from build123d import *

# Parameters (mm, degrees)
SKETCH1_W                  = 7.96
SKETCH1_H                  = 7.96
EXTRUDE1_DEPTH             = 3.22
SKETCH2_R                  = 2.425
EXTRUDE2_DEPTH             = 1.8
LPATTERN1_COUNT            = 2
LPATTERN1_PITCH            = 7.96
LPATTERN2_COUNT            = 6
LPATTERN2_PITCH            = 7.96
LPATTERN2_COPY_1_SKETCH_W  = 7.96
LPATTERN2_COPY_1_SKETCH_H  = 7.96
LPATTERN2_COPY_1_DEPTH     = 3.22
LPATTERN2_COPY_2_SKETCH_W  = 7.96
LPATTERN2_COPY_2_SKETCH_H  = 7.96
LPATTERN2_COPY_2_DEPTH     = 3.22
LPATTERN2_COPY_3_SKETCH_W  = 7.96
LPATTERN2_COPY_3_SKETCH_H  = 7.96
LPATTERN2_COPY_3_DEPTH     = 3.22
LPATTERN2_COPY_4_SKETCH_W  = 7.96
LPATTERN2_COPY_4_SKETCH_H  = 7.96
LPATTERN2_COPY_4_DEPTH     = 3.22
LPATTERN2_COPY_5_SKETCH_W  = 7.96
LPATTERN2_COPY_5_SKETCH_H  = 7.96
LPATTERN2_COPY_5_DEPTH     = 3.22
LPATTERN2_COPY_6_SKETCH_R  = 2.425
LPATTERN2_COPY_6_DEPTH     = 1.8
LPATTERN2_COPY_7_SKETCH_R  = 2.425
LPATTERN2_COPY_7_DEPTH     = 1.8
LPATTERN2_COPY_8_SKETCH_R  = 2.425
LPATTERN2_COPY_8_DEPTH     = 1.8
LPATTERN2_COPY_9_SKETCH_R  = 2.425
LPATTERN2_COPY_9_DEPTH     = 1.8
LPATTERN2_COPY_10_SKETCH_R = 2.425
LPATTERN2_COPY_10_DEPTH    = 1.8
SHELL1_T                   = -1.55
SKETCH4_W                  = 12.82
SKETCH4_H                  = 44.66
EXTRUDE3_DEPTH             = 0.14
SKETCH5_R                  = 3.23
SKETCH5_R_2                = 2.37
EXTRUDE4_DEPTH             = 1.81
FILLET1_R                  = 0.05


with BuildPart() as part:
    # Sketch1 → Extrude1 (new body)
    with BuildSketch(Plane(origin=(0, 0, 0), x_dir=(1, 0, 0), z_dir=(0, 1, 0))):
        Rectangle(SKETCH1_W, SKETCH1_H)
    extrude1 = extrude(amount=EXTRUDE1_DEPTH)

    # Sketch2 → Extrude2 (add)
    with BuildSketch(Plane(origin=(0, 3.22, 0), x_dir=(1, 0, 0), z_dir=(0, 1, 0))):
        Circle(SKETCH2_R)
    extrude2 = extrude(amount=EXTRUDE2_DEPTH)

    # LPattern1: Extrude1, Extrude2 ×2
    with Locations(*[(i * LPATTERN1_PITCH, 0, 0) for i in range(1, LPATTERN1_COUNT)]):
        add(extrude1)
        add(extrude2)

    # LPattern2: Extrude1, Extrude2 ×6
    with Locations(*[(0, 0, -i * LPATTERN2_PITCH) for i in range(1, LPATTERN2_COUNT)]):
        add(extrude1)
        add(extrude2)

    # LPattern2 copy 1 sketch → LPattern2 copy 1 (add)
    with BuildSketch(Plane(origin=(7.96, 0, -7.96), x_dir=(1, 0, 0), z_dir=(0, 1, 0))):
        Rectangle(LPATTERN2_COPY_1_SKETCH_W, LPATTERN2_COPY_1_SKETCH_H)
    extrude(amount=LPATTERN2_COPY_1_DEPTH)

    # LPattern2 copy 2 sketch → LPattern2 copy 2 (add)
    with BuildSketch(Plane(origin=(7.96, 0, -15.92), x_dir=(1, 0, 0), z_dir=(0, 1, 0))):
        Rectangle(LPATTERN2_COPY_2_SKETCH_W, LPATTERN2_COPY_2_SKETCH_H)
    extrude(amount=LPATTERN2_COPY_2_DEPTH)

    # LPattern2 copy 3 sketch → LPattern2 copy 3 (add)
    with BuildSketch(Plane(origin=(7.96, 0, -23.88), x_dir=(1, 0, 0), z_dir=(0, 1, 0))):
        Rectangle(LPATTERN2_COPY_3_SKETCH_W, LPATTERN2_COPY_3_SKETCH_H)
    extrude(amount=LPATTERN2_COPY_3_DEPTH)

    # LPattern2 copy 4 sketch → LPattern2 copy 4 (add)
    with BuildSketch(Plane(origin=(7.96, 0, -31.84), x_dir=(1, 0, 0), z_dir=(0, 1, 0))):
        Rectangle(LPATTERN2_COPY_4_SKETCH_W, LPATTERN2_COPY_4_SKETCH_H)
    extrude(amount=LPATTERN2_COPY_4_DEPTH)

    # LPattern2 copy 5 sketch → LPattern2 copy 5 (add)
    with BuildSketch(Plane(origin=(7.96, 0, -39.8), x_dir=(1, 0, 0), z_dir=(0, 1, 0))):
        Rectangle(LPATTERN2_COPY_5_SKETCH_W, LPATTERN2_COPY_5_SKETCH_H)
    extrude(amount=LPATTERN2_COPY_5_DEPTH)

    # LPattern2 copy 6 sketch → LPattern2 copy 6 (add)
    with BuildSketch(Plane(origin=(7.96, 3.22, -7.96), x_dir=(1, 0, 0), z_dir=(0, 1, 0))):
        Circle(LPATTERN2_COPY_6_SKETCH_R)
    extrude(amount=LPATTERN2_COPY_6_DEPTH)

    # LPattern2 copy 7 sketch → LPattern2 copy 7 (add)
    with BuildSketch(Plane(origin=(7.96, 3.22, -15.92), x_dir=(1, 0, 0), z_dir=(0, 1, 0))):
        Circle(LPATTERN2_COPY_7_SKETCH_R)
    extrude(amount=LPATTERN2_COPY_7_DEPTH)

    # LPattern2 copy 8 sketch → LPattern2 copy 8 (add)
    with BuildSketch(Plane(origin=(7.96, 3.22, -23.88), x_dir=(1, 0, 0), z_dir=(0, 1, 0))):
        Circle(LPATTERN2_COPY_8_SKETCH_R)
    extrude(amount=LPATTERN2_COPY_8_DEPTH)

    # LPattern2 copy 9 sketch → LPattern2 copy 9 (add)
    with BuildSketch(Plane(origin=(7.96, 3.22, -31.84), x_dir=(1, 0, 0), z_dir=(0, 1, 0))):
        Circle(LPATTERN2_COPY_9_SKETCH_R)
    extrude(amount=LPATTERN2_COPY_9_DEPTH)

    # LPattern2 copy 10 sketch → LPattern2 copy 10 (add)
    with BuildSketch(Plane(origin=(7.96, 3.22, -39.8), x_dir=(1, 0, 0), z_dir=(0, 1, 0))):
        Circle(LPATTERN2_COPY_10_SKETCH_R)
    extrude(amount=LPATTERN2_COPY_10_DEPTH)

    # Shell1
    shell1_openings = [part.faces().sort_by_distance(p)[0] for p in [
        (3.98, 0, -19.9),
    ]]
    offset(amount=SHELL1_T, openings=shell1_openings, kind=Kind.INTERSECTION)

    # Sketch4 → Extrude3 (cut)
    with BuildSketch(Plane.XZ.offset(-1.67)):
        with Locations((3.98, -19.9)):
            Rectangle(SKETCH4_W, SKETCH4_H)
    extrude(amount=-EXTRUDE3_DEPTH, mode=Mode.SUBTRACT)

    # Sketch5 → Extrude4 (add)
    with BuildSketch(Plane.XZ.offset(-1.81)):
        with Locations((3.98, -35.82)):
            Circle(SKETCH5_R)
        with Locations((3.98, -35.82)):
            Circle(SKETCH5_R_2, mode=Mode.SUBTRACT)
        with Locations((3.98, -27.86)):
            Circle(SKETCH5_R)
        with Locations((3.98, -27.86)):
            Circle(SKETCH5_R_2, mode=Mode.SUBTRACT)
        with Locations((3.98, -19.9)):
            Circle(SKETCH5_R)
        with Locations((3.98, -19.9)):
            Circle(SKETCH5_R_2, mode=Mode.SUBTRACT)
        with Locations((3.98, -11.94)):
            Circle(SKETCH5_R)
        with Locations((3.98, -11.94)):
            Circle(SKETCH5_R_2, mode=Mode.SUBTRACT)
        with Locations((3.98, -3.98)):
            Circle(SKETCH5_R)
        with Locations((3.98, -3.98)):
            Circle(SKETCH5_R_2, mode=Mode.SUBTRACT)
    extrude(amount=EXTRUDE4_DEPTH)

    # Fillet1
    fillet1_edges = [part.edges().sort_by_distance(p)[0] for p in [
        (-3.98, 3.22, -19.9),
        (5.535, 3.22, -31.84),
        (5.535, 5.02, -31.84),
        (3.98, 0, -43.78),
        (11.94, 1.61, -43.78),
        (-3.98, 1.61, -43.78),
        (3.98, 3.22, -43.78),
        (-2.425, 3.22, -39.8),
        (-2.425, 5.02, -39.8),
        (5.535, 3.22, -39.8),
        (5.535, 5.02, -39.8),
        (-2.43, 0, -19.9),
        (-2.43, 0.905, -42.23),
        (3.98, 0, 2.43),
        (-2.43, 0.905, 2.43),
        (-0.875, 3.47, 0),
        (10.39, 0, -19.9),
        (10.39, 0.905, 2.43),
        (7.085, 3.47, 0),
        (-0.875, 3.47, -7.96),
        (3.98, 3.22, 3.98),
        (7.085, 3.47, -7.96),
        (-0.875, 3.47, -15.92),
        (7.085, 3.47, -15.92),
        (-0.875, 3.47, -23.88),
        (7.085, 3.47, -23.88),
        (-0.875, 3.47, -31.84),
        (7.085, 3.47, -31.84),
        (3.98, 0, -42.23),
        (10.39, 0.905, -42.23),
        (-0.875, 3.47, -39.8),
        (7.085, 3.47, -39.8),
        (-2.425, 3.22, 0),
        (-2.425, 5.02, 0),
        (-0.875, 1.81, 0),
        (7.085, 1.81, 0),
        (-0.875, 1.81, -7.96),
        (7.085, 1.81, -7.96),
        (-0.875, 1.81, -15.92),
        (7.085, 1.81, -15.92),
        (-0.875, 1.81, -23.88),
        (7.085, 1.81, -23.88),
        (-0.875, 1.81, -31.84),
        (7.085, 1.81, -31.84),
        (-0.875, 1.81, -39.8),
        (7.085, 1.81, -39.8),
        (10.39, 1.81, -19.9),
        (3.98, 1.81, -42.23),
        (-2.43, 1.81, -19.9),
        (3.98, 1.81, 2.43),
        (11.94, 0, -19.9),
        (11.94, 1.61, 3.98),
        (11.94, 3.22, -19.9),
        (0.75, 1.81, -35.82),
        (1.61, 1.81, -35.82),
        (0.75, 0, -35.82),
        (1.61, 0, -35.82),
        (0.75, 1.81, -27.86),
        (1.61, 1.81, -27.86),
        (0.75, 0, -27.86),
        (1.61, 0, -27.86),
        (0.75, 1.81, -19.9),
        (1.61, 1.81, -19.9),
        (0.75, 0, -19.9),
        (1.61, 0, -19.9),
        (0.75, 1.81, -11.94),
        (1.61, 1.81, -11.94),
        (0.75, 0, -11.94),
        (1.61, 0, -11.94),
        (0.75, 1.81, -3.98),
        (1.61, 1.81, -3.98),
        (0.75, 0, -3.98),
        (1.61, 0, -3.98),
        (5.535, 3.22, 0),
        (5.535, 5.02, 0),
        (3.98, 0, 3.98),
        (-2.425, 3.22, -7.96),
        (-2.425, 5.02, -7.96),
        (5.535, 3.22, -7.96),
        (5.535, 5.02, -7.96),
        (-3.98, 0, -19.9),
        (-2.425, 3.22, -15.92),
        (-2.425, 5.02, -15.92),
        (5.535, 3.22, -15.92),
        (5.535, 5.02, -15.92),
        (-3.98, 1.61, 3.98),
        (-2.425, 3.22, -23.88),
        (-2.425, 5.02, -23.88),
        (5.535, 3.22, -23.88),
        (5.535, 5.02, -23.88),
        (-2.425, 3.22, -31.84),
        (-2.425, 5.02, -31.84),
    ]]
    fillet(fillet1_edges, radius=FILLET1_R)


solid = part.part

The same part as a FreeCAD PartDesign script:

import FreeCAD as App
import Part
import Sketcher

V = App.Vector
Q = App.Units.Quantity


def faces_at(feature, points):
    """Names of the faces that lie closest to the given points."""
    faces = feature.Shape.Faces
    near = lambda p: min(range(len(faces)), key=lambda i: faces[i].distToShape(Part.Vertex(*p))[0])
    return sorted({f"Face{near(p) + 1}" for p in points})


def add_polygon(sketch, points):
    """Adds a closed chain of lines whose ends are joined by coincident constraints."""
    first, n = sketch.GeometryCount, len(points)
    for a, b in zip(points, points[1:] + points[:1]):
        sketch.addGeometry(Part.LineSegment(App.Vector(*a, 0), App.Vector(*b, 0)), False)
    for i in range(n):
        sketch.addConstraint(Sketcher.Constraint("Coincident", first + i, 2, first + (i + 1) % n, 1))

doc = App.newDocument("Part")
body = doc.addObject("PartDesign::Body", "Body")

# Sketch on XZ plane
sketch1 = doc.addObject("Sketcher::SketchObject", "Sketch")
body.addObject(sketch1)
sketch1.AttachmentSupport = (doc.XZ_Plane, [""])
sketch1.MapMode = "FlatFace"
add_polygon(sketch1, [(-3.98, -3.98), (-3.98, 3.98), (3.98, 3.98), (3.98, -3.98)])  # lines 0-3
sketch1.addConstraint([
    Sketcher.Constraint("Vertical", 0),
    Sketcher.Constraint("Horizontal", 1),
    Sketcher.Constraint("Vertical", 2),
    Sketcher.Constraint("Horizontal", 3),
    Sketcher.Constraint("Symmetric", 0, 2, 2, 2, -1, 1),
    Sketcher.Constraint("Equal", 3, 0),
    Sketcher.Constraint("DistanceX", 1, 1, 1, 2, Q("7.96 mm")),
])
pad1 = doc.addObject("PartDesign::Pad", "Pad")
body.addObject(pad1)
pad1.Profile = sketch1
pad1.Length = 3.22
pad1.Reversed = True

# Sketch on XZ plane
sketch2 = doc.addObject("Sketcher::SketchObject", "Sketch001")
body.addObject(sketch2)
sketch2.AttachmentSupport = (doc.XZ_Plane, [""])
sketch2.MapMode = "FlatFace"
sketch2.AttachmentOffset = App.Placement(V(0, 0, -3.22), App.Rotation())
sketch2.addGeometry(Part.Circle(V(0, 0, 0), V(0, 0, 1), 2.425), False)
sketch2.addConstraint([
    Sketcher.Constraint("Coincident", 0, 3, -1, 1),
    Sketcher.Constraint("Diameter", 0, Q("4.85 mm")),
])
pad2 = doc.addObject("PartDesign::Pad", "Pad001")
body.addObject(pad2)
pad2.Profile = sketch2
pad2.Length = 1.8
pad2.Reversed = True
doc.recompute()

linearpattern = doc.addObject("PartDesign::LinearPattern", "LinearPattern")
body.addObject(linearpattern)
linearpattern.Originals = [pad1, pad2]
linearpattern.Direction = (doc.X_Axis, [""])
linearpattern.Mode = "offset"
linearpattern.Offset = 7.96
linearpattern.Occurrences = 2
body.Tip = linearpattern
doc.recompute()

linearpattern2 = doc.addObject("PartDesign::LinearPattern", "LinearPattern001")
body.addObject(linearpattern2)
linearpattern2.Originals = [pad1, pad2]
linearpattern2.Direction = (doc.Z_Axis, [""])
linearpattern2.Mode = "offset"
linearpattern2.Offset = 7.96
linearpattern2.Occurrences = 6
linearpattern2.Reversed = True
body.Tip = linearpattern2

# Sketch on XZ plane
sketch3 = doc.addObject("Sketcher::SketchObject", "Sketch002")
body.addObject(sketch3)
sketch3.AttachmentSupport = (doc.XZ_Plane, [""])
sketch3.MapMode = "FlatFace"
add_polygon(sketch3, [(3.98, -11.94), (3.98, -3.98), (11.94, -3.98), (11.94, -11.94)])  # lines 0-3
sketch3.addConstraint([
    Sketcher.Constraint("Vertical", 0),
    Sketcher.Constraint("Horizontal", 1),
    Sketcher.Constraint("Vertical", 2),
    Sketcher.Constraint("Horizontal", 3),
    Sketcher.Constraint("Equal", 3, 0),
    Sketcher.Constraint("DistanceX", 1, 1, 1, 2, Q("7.96 mm")),
    Sketcher.Constraint("DistanceX", -1, 1, 0, 2, Q("3.98 mm")),
    Sketcher.Constraint("DistanceY", 0, 2, -1, 1, Q("3.98 mm")),
])
pad3 = doc.addObject("PartDesign::Pad", "Pad002")
body.addObject(pad3)
pad3.Profile = sketch3
pad3.Length = 3.22
pad3.Reversed = True

# Sketch on XZ plane
sketch4 = doc.addObject("Sketcher::SketchObject", "Sketch003")
body.addObject(sketch4)
sketch4.AttachmentSupport = (doc.XZ_Plane, [""])
sketch4.MapMode = "FlatFace"
add_polygon(sketch4, [(3.98, -19.9), (3.98, -11.94), (11.94, -11.94), (11.94, -19.9)])  # lines 0-3
sketch4.addConstraint([
    Sketcher.Constraint("Vertical", 0),
    Sketcher.Constraint("Horizontal", 1),
    Sketcher.Constraint("Vertical", 2),
    Sketcher.Constraint("Horizontal", 3),
    Sketcher.Constraint("Equal", 3, 0),
    Sketcher.Constraint("DistanceX", 1, 1, 1, 2, Q("7.96 mm")),
    Sketcher.Constraint("DistanceY", 2, 2, -1, 1, Q("19.9 mm")),
    Sketcher.Constraint("DistanceX", -1, 1, 0, 2, Q("3.98 mm")),
])
pad4 = doc.addObject("PartDesign::Pad", "Pad003")
body.addObject(pad4)
pad4.Profile = sketch4
pad4.Length = 3.22
pad4.Reversed = True

# Sketch on XZ plane
sketch5 = doc.addObject("Sketcher::SketchObject", "Sketch004")
body.addObject(sketch5)
sketch5.AttachmentSupport = (doc.XZ_Plane, [""])
sketch5.MapMode = "FlatFace"
add_polygon(sketch5, [(3.98, -27.86), (3.98, -19.9), (11.94, -19.9), (11.94, -27.86)])  # lines 0-3
sketch5.addConstraint([
    Sketcher.Constraint("Vertical", 0),
    Sketcher.Constraint("Horizontal", 1),
    Sketcher.Constraint("Vertical", 2),
    Sketcher.Constraint("Horizontal", 3),
    Sketcher.Constraint("Equal", 3, 0),
    Sketcher.Constraint("DistanceX", 1, 1, 1, 2, Q("7.96 mm")),
    Sketcher.Constraint("DistanceY", 0, 2, -1, 1, Q("19.9 mm")),
    Sketcher.Constraint("DistanceX", -1, 1, 0, 2, Q("3.98 mm")),
])
pad5 = doc.addObject("PartDesign::Pad", "Pad004")
body.addObject(pad5)
pad5.Profile = sketch5
pad5.Length = 3.22
pad5.Reversed = True

# Sketch on XZ plane
sketch6 = doc.addObject("Sketcher::SketchObject", "Sketch005")
body.addObject(sketch6)
sketch6.AttachmentSupport = (doc.XZ_Plane, [""])
sketch6.MapMode = "FlatFace"
add_polygon(sketch6, [(3.98, -35.82), (3.98, -27.86), (11.94, -27.86), (11.94, -35.82)])  # lines 0-3
sketch6.addConstraint([
    Sketcher.Constraint("Vertical", 0),
    Sketcher.Constraint("Horizontal", 1),
    Sketcher.Constraint("Vertical", 2),
    Sketcher.Constraint("Horizontal", 3),
    Sketcher.Constraint("Equal", 3, 0),
    Sketcher.Constraint("DistanceX", 1, 1, 1, 2, Q("7.96 mm")),
    Sketcher.Constraint("DistanceX", -1, 1, 0, 2, Q("3.98 mm")),
    Sketcher.Constraint("DistanceY", 0, 2, -1, 1, Q("27.86 mm")),
])
pad6 = doc.addObject("PartDesign::Pad", "Pad005")
body.addObject(pad6)
pad6.Profile = sketch6
pad6.Length = 3.22
pad6.Reversed = True

# Sketch on XZ plane
sketch7 = doc.addObject("Sketcher::SketchObject", "Sketch006")
body.addObject(sketch7)
sketch7.AttachmentSupport = (doc.XZ_Plane, [""])
sketch7.MapMode = "FlatFace"
add_polygon(sketch7, [(3.98, -43.78), (3.98, -35.82), (11.94, -35.82), (11.94, -43.78)])  # lines 0-3
sketch7.addConstraint([
    Sketcher.Constraint("Vertical", 0),
    Sketcher.Constraint("Horizontal", 1),
    Sketcher.Constraint("Vertical", 2),
    Sketcher.Constraint("Horizontal", 3),
    Sketcher.Constraint("Equal", 3, 0),
    Sketcher.Constraint("DistanceX", 1, 1, 1, 2, Q("7.96 mm")),
    Sketcher.Constraint("DistanceX", -1, 1, 0, 2, Q("3.98 mm")),
    Sketcher.Constraint("DistanceY", 0, 2, -1, 1, Q("35.82 mm")),
])
pad7 = doc.addObject("PartDesign::Pad", "Pad006")
body.addObject(pad7)
pad7.Profile = sketch7
pad7.Length = 3.22
pad7.Reversed = True

# Sketch on XZ plane
sketch8 = doc.addObject("Sketcher::SketchObject", "Sketch007")
body.addObject(sketch8)
sketch8.AttachmentSupport = (doc.XZ_Plane, [""])
sketch8.MapMode = "FlatFace"
sketch8.AttachmentOffset = App.Placement(V(0, 0, -3.22), App.Rotation())
sketch8.addGeometry(Part.Circle(V(7.96, -7.96, 0), V(0, 0, 1), 2.425), False)
sketch8.addConstraint([
    Sketcher.Constraint("Diameter", 0, Q("4.85 mm")),
    Sketcher.Constraint("DistanceX", -1, 1, 0, 3, Q("7.96 mm")),
    Sketcher.Constraint("DistanceY", 0, 3, -1, 1, Q("7.96 mm")),
])
pad8 = doc.addObject("PartDesign::Pad", "Pad007")
body.addObject(pad8)
pad8.Profile = sketch8
pad8.Length = 1.8
pad8.Reversed = True

# Sketch on XZ plane
sketch9 = doc.addObject("Sketcher::SketchObject", "Sketch008")
body.addObject(sketch9)
sketch9.AttachmentSupport = (doc.XZ_Plane, [""])
sketch9.MapMode = "FlatFace"
sketch9.AttachmentOffset = App.Placement(V(0, 0, -3.22), App.Rotation())
sketch9.addGeometry(Part.Circle(V(7.96, -15.92, 0), V(0, 0, 1), 2.425), False)
sketch9.addConstraint([
    Sketcher.Constraint("Diameter", 0, Q("4.85 mm")),
    Sketcher.Constraint("DistanceX", -1, 1, 0, 3, Q("7.96 mm")),
    Sketcher.Constraint("DistanceY", 0, 3, -1, 1, Q("15.92 mm")),
])
pad9 = doc.addObject("PartDesign::Pad", "Pad008")
body.addObject(pad9)
pad9.Profile = sketch9
pad9.Length = 1.8
pad9.Reversed = True

# Sketch on XZ plane
sketch10 = doc.addObject("Sketcher::SketchObject", "Sketch009")
body.addObject(sketch10)
sketch10.AttachmentSupport = (doc.XZ_Plane, [""])
sketch10.MapMode = "FlatFace"
sketch10.AttachmentOffset = App.Placement(V(0, 0, -3.22), App.Rotation())
sketch10.addGeometry(Part.Circle(V(7.96, -23.88, 0), V(0, 0, 1), 2.425), False)
sketch10.addConstraint([
    Sketcher.Constraint("Diameter", 0, Q("4.85 mm")),
    Sketcher.Constraint("DistanceX", -1, 1, 0, 3, Q("7.96 mm")),
    Sketcher.Constraint("DistanceY", 0, 3, -1, 1, Q("23.88 mm")),
])
pad10 = doc.addObject("PartDesign::Pad", "Pad009")
body.addObject(pad10)
pad10.Profile = sketch10
pad10.Length = 1.8
pad10.Reversed = True

# Sketch on XZ plane
sketch11 = doc.addObject("Sketcher::SketchObject", "Sketch010")
body.addObject(sketch11)
sketch11.AttachmentSupport = (doc.XZ_Plane, [""])
sketch11.MapMode = "FlatFace"
sketch11.AttachmentOffset = App.Placement(V(0, 0, -3.22), App.Rotation())
sketch11.addGeometry(Part.Circle(V(7.96, -31.84, 0), V(0, 0, 1), 2.425), False)
sketch11.addConstraint([
    Sketcher.Constraint("Diameter", 0, Q("4.85 mm")),
    Sketcher.Constraint("DistanceX", -1, 1, 0, 3, Q("7.96 mm")),
    Sketcher.Constraint("DistanceY", 0, 3, -1, 1, Q("31.84 mm")),
])
pad11 = doc.addObject("PartDesign::Pad", "Pad010")
body.addObject(pad11)
pad11.Profile = sketch11
pad11.Length = 1.8
pad11.Reversed = True

# Sketch on XZ plane
sketch12 = doc.addObject("Sketcher::SketchObject", "Sketch011")
body.addObject(sketch12)
sketch12.AttachmentSupport = (doc.XZ_Plane, [""])
sketch12.MapMode = "FlatFace"
sketch12.AttachmentOffset = App.Placement(V(0, 0, -3.22), App.Rotation())
sketch12.addGeometry(Part.Circle(V(7.96, -39.8, 0), V(0, 0, 1), 2.425), False)
sketch12.addConstraint([
    Sketcher.Constraint("Diameter", 0, Q("4.85 mm")),
    Sketcher.Constraint("DistanceY", 0, 3, -1, 1, Q("39.8 mm")),
    Sketcher.Constraint("DistanceX", -1, 1, 0, 3, Q("7.96 mm")),
])
pad12 = doc.addObject("PartDesign::Pad", "Pad011")
body.addObject(pad12)
pad12.Profile = sketch12
pad12.Length = 1.8
pad12.Reversed = True
doc.recompute()

thickness = doc.addObject("PartDesign::Thickness", "Thickness")
body.addObject(thickness)
thickness.Base = (pad12, faces_at(pad12, [(3.98, 0, -19.9)]))
thickness.Value = 1.55
thickness.Reversed = True
thickness.Join = "Intersection"

# Sketch on XZ plane
sketch13 = doc.addObject("Sketcher::SketchObject", "Sketch012")
body.addObject(sketch13)
sketch13.AttachmentSupport = (doc.XZ_Plane, [""])
sketch13.MapMode = "FlatFace"
sketch13.AttachmentOffset = App.Placement(V(0, 0, -1.67), App.Rotation())
add_polygon(sketch13, [(-2.43, 2.43), (-2.43, -42.23), (10.39, -42.23), (10.39, 2.43)])  # lines 0-3
sketch13.addConstraint([
    Sketcher.Constraint("Vertical", 0),
    Sketcher.Constraint("Horizontal", 1),
    Sketcher.Constraint("Vertical", 2),
    Sketcher.Constraint("Horizontal", 3),
    Sketcher.Constraint("DistanceX", 1, 1, 1, 2, Q("12.82 mm")),
    Sketcher.Constraint("DistanceY", 0, 2, 0, 1, Q("44.66 mm")),
    Sketcher.Constraint("DistanceX", 0, 2, -1, 1, Q("2.43 mm")),
    Sketcher.Constraint("DistanceY", 0, 2, -1, 1, Q("42.23 mm")),
])
pocket1 = doc.addObject("PartDesign::Pocket", "Pocket")
body.addObject(pocket1)
pocket1.Profile = sketch13
pocket1.Length = 0.14

# Sketch on XZ plane
sketch14 = doc.addObject("Sketcher::SketchObject", "Sketch013")
body.addObject(sketch14)
sketch14.AttachmentSupport = (doc.XZ_Plane, [""])
sketch14.MapMode = "FlatFace"
sketch14.AttachmentOffset = App.Placement(V(0, 0, -1.81), App.Rotation())
sketch14.addGeometry([
    Part.Circle(V(3.98, -35.82, 0), V(0, 0, 1), 3.23),  # 0
    Part.Circle(V(3.98, -35.82, 0), V(0, 0, 1), 2.37),  # 1
    Part.Circle(V(3.98, -27.86, 0), V(0, 0, 1), 3.23),  # 2
    Part.Circle(V(3.98, -27.86, 0), V(0, 0, 1), 2.37),  # 3
    Part.Circle(V(3.98, -19.9, 0), V(0, 0, 1), 3.23),  # 4
    Part.Circle(V(3.98, -19.9, 0), V(0, 0, 1), 2.37),  # 5
    Part.Circle(V(3.98, -11.94, 0), V(0, 0, 1), 3.23),  # 6
    Part.Circle(V(3.98, -11.94, 0), V(0, 0, 1), 2.37),  # 7
    Part.Circle(V(3.98, -3.98, 0), V(0, 0, 1), 3.23),  # 8
    Part.Circle(V(3.98, -3.98, 0), V(0, 0, 1), 2.37),  # 9
], False)
sketch14.addConstraint([
    Sketcher.Constraint("Coincident", 1, 3, 0, 3),
    Sketcher.Constraint("Coincident", 3, 3, 2, 3),
    Sketcher.Constraint("Coincident", 5, 3, 4, 3),
    Sketcher.Constraint("Coincident", 7, 3, 6, 3),
    Sketcher.Constraint("Coincident", 9, 3, 8, 3),
    Sketcher.Constraint("Equal", 0, 2),
    Sketcher.Constraint("Equal", 1, 3),
    Sketcher.Constraint("Equal", 2, 4),
    Sketcher.Constraint("Equal", 3, 5),
    Sketcher.Constraint("Equal", 4, 6),
    Sketcher.Constraint("Equal", 5, 7),
    Sketcher.Constraint("Equal", 6, 8),
    Sketcher.Constraint("Equal", 7, 9),
    Sketcher.Constraint("Vertical", 1, 3, 2, 3),
    Sketcher.Constraint("Vertical", 3, 3, 4, 3),
    Sketcher.Constraint("Vertical", 5, 3, 6, 3),
    Sketcher.Constraint("Vertical", 7, 3, 8, 3),
    Sketcher.Constraint("Diameter", 0, Q("6.46 mm")),
    Sketcher.Constraint("Diameter", 1, Q("4.74 mm")),
    Sketcher.Constraint("DistanceY", 4, 3, -1, 1, Q("19.9 mm")),
    Sketcher.Constraint("DistanceX", -1, 1, 0, 3, Q("3.98 mm")),
    Sketcher.Constraint("DistanceY", 0, 3, -1, 1, Q("35.82 mm")),
    Sketcher.Constraint("DistanceY", 2, 3, -1, 1, Q("27.86 mm")),
    Sketcher.Constraint("DistanceY", 6, 3, -1, 1, Q("11.94 mm")),
    Sketcher.Constraint("DistanceY", 8, 3, -1, 1, Q("3.98 mm")),
])
pad13 = doc.addObject("PartDesign::Pad", "Pad012")
body.addObject(pad13)
pad13.Profile = sketch14
pad13.Length = 1.81
doc.recompute()

fillet = doc.addObject("PartDesign::Fillet", "Fillet")
body.addObject(fillet)
fillet.Base = (pad13, ["Edge1"])
fillet.UseAllEdges = True
fillet.Radius = 0.05

doc.recompute()
